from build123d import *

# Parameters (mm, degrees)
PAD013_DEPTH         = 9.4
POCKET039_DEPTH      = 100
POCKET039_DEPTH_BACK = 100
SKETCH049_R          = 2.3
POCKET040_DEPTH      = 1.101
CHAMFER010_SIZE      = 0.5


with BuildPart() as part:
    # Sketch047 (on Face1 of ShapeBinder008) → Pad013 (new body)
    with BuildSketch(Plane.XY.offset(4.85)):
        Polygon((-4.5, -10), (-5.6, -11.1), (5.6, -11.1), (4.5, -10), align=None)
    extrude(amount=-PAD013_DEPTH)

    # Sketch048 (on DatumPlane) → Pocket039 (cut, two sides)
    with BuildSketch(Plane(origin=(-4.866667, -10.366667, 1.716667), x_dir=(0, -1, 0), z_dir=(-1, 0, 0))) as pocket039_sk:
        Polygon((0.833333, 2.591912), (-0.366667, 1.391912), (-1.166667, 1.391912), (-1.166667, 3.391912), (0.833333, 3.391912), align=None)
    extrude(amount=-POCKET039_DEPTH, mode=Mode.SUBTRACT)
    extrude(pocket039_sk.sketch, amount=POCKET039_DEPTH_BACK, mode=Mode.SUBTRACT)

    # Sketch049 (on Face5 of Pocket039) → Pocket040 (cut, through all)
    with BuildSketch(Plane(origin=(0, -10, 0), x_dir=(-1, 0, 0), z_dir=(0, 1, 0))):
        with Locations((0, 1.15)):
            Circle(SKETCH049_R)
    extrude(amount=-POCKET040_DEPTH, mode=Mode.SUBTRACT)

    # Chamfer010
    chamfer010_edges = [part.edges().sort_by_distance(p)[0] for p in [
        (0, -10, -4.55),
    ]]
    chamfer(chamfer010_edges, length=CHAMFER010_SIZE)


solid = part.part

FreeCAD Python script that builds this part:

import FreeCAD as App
import Part
import Sketcher
from FreeCAD import Vector


def edges_at(feature, points):
    """Names of the edges that pass closest to the given points."""
    edges = feature.Shape.Edges
    near = lambda p: min(range(len(edges)), key=lambda i: edges[i].distToShape(Part.Vertex(*p))[0])
    return sorted({f"Edge{near(p) + 1}" for p in points})

doc = App.newDocument("Part")
body = doc.addObject("PartDesign::Body", "Body")

# Sketch on XY plane
sketch1 = doc.addObject("Sketcher::SketchObject", "Sketch")
body.addObject(sketch1)
sketch1.AttachmentSupport = (doc.XY_Plane, [""])
sketch1.MapMode = "FlatFace"
sketch1.AttachmentOffset = App.Placement(Vector(0, 0, 4.85), App.Rotation())
sketch1.addGeometry([
    Part.LineSegment(Vector(-4.5, -10, 0), Vector(-5.6, -11.1, 0)),
    Part.LineSegment(Vector(-5.6, -11.1, 0), Vector(5.6, -11.1, 0)),
    Part.LineSegment(Vector(5.6, -11.1, 0), Vector(4.5, -10, 0)),
    Part.LineSegment(Vector(4.5, -10, 0), Vector(-4.5, -10, 0)),
], False)
sketch1.addConstraint([
    Sketcher.Constraint("Coincident", 0, 2, 1, 1),
    Sketcher.Constraint("Coincident", 1, 2, 2, 1),
    Sketcher.Constraint("Coincident", 2, 2, 3, 1),
    Sketcher.Constraint("Coincident", 3, 2, 0, 1),
    Sketcher.Constraint("Horizontal", 1),
    Sketcher.Constraint("Horizontal", 3),
    Sketcher.Constraint("Perpendicular", 0, 2),
    Sketcher.Constraint("Equal", 0, 2),
    Sketcher.Constraint("DistanceX", 3, 2, 3, 1, 9.0),
    Sketcher.Constraint("DistanceX", 1, 1, 1, 2, 11.2),
    Sketcher.Constraint("DistanceY", 2, 2, -1, 1, 10.0),
    Sketcher.Constraint("DistanceX", 0, 2, -1, 1, 5.6),
])
pad1 = doc.addObject("PartDesign::Pad", "Pad")
body.addObject(pad1)
pad1.Profile = sketch1
pad1.Length = 9.4
pad1.Reversed = True

# Sketch on YZ plane
sketch2 = doc.addObject("Sketcher::SketchObject", "Sketch001")
body.addObject(sketch2)
sketch2.AttachmentSupport = (doc.YZ_Plane, [""])
sketch2.MapMode = "FlatFace"
sketch2.AttachmentOffset = App.Placement(Vector(0, 0, -4.866667), App.Rotation())
sketch2.addGeometry([
    Part.LineSegment(Vector(-10, 3.1, 0), Vector(-11.2, 4.3, 0)),  # 0
    Part.LineSegment(Vector(-11.2, 4.3, 0), Vector(-11.2, 5.1, 0)),  # 1
    Part.LineSegment(Vector(-11.2, 5.1, 0), Vector(-9.2, 5.1, 0)),  # 2
    Part.LineSegment(Vector(-9.2, 5.1, 0), Vector(-9.2, 3.1, 0)),  # 3
    Part.LineSegment(Vector(-9.2, 3.1, 0), Vector(-10, 3.1, 0)),  # 4
], False)
sketch2.addConstraint([
    Sketcher.Constraint("Coincident", 0, 2, 1, 1),
    Sketcher.Constraint("Coincident", 1, 2, 2, 1),
    Sketcher.Constraint("Coincident", 2, 2, 3, 1),
    Sketcher.Constraint("Coincident", 3, 2, 4, 1),
    Sketcher.Constraint("Coincident", 4, 2, 0, 1),
    Sketcher.Constraint("Vertical", 1),
    Sketcher.Constraint("Horizontal", 2),
    Sketcher.Constraint("Vertical", 3),
    Sketcher.Constraint("Horizontal", 4),
    Sketcher.Constraint("Equal", 4, 1),
    Sketcher.Constraint("Equal", 2, 3),
    Sketcher.Constraint("DistanceX", 2, 1, 2, 2, 2.0),
    Sketcher.Constraint("DistanceX", 4, 2, 4, 1, 0.8),
    Sketcher.Constraint("DistanceX", 4, 2, -1, 1, 10.0),
    Sketcher.Constraint("DistanceY", -1, 1, 0, 2, 4.308579),
])
pocket1 = doc.addObject("PartDesign::Pocket", "Pocket")
body.addObject(pocket1)
pocket1.Profile = sketch2
pocket1.Type = "ThroughAll"
pocket1.Midplane = True

# Sketch on XZ plane
sketch3 = doc.addObject("Sketcher::SketchObject", "Sketch002")
body.addObject(sketch3)
sketch3.AttachmentSupport = (doc.XZ_Plane, [""])
sketch3.MapMode = "FlatFace"
sketch3.AttachmentOffset = App.Placement(Vector(0, 0, 10), App.Rotation())
sketch3.addGeometry(Part.Circle(Vector(0, 1.1, 0), Vector(0, 0, 1), 2.3), False)
sketch3.addConstraint([
    Sketcher.Constraint("PointOnObject", 0, 3, -2),
    Sketcher.Constraint("Diameter", 0, 4.6),
    Sketcher.Constraint("DistanceY", -1, 1, 0, 3, 1.15),
])
pocket2 = doc.addObject("PartDesign::Pocket", "Pocket001")
body.addObject(pocket2)
pocket2.Profile = sketch3
pocket2.Type = "ThroughAll"
pocket2.Reversed = True
doc.recompute()

chamfer = doc.addObject("PartDesign::Chamfer", "Chamfer")
body.addObject(chamfer)
chamfer.Base = (pocket2, edges_at(pocket2, [(0, -10, -4.55)]))
chamfer.Size = 0.5

doc.recompute()
